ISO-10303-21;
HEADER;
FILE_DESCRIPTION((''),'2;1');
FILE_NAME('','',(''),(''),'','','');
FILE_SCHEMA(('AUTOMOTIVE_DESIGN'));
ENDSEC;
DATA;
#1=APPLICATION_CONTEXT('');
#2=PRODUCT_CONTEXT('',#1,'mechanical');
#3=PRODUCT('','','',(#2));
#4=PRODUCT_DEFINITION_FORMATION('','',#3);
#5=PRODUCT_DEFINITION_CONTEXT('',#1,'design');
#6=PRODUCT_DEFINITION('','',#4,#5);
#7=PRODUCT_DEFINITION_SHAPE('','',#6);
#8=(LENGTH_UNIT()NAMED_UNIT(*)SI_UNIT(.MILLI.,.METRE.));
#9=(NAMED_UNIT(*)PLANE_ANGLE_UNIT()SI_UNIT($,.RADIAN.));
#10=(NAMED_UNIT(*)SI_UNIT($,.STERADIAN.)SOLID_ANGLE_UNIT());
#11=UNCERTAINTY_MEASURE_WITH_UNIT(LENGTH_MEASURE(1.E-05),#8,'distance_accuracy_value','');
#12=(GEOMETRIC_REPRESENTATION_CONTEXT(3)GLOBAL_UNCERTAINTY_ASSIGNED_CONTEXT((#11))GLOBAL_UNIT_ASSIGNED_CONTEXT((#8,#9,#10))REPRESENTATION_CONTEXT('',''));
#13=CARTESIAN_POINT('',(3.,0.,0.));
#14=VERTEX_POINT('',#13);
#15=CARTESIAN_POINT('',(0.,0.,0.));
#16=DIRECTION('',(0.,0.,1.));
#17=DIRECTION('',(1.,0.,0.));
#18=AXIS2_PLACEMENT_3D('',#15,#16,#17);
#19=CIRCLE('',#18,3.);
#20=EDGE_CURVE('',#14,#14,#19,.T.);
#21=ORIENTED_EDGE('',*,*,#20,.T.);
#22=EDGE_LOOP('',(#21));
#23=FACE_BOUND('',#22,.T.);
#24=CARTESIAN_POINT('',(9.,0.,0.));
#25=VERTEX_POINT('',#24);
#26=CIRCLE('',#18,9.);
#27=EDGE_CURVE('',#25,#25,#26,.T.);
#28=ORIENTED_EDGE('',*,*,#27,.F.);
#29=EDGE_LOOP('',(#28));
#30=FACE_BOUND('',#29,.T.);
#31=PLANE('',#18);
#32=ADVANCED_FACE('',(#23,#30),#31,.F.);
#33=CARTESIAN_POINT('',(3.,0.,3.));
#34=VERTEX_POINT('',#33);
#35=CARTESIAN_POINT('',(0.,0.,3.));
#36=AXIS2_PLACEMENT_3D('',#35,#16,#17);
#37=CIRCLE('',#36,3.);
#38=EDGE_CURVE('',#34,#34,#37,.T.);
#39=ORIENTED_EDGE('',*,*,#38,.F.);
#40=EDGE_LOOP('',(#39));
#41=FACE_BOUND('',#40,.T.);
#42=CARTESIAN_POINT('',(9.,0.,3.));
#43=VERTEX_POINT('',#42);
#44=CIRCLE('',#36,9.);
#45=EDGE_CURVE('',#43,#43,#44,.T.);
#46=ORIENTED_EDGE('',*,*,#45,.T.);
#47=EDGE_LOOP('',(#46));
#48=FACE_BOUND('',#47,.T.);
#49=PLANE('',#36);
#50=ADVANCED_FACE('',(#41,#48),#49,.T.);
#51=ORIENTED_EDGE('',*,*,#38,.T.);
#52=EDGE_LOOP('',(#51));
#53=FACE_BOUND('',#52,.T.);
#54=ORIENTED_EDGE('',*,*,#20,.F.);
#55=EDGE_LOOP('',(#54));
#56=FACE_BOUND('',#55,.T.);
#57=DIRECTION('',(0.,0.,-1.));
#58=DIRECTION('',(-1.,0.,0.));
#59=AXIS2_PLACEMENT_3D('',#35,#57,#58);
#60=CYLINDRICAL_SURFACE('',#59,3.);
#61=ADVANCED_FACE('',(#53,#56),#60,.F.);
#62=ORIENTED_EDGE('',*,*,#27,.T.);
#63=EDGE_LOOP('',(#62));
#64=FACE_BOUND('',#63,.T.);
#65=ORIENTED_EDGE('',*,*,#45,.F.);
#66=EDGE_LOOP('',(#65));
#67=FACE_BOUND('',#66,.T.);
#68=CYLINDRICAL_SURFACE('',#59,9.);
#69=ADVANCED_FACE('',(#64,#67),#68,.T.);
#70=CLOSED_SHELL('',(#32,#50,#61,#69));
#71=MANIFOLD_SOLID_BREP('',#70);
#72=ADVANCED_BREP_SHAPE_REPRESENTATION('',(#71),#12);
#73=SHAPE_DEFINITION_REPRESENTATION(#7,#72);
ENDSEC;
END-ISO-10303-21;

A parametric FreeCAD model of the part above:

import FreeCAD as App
import Part
import Sketcher

V = App.Vector
Q = App.Units.Quantity

doc = App.newDocument("Part")
params = doc.addObject("Spreadsheet::Sheet", "Params")
for row, (alias, value) in enumerate([
    ("sketch1_diameter", "18 mm"),
    ("sketch1_diameter2", "6 mm"),
    ("pad1_length", "3 mm"),
], start=1):
    params.set(f"A{row}", alias)
    params.set(f"B{row}", "=" + value)
    params.setAlias(f"B{row}", alias)

body = doc.addObject("PartDesign::Body", "Body")

sketch1 = doc.addObject("Sketcher::SketchObject", "Sketch")
body.addObject(sketch1)
sketch1.AttachmentSupport = (doc.XY_Plane, [""])
sketch1.MapMode = "FlatFace"
sketch1.addGeometry(Part.Circle(V(0, 0, 0), V(0, 0, 1), 9), False)
sketch1.addGeometry(Part.Circle(V(0, 0, 0), V(0, 0, 1), 3), False)
sketch1.addConstraint(Sketcher.Constraint("Coincident", 0, 3, -1, 1))
sketch1.addConstraint(Sketcher.Constraint("Coincident", 1, 3, -1, 1))
sketch1.addConstraint(Sketcher.Constraint("Diameter", 0, Q("18 mm")))
sketch1.addConstraint(Sketcher.Constraint("Diameter", 1, Q("6 mm")))
sketch1.setExpression("Constraints[2]", "Params.sketch1_diameter")
sketch1.setExpression("Constraints[3]", "Params.sketch1_diameter2")
pad1 = doc.addObject("PartDesign::Pad", "Pad")
body.addObject(pad1)
pad1.Profile = sketch1
pad1.setExpression("Length", "Params.pad1_length")

doc.recompute()
